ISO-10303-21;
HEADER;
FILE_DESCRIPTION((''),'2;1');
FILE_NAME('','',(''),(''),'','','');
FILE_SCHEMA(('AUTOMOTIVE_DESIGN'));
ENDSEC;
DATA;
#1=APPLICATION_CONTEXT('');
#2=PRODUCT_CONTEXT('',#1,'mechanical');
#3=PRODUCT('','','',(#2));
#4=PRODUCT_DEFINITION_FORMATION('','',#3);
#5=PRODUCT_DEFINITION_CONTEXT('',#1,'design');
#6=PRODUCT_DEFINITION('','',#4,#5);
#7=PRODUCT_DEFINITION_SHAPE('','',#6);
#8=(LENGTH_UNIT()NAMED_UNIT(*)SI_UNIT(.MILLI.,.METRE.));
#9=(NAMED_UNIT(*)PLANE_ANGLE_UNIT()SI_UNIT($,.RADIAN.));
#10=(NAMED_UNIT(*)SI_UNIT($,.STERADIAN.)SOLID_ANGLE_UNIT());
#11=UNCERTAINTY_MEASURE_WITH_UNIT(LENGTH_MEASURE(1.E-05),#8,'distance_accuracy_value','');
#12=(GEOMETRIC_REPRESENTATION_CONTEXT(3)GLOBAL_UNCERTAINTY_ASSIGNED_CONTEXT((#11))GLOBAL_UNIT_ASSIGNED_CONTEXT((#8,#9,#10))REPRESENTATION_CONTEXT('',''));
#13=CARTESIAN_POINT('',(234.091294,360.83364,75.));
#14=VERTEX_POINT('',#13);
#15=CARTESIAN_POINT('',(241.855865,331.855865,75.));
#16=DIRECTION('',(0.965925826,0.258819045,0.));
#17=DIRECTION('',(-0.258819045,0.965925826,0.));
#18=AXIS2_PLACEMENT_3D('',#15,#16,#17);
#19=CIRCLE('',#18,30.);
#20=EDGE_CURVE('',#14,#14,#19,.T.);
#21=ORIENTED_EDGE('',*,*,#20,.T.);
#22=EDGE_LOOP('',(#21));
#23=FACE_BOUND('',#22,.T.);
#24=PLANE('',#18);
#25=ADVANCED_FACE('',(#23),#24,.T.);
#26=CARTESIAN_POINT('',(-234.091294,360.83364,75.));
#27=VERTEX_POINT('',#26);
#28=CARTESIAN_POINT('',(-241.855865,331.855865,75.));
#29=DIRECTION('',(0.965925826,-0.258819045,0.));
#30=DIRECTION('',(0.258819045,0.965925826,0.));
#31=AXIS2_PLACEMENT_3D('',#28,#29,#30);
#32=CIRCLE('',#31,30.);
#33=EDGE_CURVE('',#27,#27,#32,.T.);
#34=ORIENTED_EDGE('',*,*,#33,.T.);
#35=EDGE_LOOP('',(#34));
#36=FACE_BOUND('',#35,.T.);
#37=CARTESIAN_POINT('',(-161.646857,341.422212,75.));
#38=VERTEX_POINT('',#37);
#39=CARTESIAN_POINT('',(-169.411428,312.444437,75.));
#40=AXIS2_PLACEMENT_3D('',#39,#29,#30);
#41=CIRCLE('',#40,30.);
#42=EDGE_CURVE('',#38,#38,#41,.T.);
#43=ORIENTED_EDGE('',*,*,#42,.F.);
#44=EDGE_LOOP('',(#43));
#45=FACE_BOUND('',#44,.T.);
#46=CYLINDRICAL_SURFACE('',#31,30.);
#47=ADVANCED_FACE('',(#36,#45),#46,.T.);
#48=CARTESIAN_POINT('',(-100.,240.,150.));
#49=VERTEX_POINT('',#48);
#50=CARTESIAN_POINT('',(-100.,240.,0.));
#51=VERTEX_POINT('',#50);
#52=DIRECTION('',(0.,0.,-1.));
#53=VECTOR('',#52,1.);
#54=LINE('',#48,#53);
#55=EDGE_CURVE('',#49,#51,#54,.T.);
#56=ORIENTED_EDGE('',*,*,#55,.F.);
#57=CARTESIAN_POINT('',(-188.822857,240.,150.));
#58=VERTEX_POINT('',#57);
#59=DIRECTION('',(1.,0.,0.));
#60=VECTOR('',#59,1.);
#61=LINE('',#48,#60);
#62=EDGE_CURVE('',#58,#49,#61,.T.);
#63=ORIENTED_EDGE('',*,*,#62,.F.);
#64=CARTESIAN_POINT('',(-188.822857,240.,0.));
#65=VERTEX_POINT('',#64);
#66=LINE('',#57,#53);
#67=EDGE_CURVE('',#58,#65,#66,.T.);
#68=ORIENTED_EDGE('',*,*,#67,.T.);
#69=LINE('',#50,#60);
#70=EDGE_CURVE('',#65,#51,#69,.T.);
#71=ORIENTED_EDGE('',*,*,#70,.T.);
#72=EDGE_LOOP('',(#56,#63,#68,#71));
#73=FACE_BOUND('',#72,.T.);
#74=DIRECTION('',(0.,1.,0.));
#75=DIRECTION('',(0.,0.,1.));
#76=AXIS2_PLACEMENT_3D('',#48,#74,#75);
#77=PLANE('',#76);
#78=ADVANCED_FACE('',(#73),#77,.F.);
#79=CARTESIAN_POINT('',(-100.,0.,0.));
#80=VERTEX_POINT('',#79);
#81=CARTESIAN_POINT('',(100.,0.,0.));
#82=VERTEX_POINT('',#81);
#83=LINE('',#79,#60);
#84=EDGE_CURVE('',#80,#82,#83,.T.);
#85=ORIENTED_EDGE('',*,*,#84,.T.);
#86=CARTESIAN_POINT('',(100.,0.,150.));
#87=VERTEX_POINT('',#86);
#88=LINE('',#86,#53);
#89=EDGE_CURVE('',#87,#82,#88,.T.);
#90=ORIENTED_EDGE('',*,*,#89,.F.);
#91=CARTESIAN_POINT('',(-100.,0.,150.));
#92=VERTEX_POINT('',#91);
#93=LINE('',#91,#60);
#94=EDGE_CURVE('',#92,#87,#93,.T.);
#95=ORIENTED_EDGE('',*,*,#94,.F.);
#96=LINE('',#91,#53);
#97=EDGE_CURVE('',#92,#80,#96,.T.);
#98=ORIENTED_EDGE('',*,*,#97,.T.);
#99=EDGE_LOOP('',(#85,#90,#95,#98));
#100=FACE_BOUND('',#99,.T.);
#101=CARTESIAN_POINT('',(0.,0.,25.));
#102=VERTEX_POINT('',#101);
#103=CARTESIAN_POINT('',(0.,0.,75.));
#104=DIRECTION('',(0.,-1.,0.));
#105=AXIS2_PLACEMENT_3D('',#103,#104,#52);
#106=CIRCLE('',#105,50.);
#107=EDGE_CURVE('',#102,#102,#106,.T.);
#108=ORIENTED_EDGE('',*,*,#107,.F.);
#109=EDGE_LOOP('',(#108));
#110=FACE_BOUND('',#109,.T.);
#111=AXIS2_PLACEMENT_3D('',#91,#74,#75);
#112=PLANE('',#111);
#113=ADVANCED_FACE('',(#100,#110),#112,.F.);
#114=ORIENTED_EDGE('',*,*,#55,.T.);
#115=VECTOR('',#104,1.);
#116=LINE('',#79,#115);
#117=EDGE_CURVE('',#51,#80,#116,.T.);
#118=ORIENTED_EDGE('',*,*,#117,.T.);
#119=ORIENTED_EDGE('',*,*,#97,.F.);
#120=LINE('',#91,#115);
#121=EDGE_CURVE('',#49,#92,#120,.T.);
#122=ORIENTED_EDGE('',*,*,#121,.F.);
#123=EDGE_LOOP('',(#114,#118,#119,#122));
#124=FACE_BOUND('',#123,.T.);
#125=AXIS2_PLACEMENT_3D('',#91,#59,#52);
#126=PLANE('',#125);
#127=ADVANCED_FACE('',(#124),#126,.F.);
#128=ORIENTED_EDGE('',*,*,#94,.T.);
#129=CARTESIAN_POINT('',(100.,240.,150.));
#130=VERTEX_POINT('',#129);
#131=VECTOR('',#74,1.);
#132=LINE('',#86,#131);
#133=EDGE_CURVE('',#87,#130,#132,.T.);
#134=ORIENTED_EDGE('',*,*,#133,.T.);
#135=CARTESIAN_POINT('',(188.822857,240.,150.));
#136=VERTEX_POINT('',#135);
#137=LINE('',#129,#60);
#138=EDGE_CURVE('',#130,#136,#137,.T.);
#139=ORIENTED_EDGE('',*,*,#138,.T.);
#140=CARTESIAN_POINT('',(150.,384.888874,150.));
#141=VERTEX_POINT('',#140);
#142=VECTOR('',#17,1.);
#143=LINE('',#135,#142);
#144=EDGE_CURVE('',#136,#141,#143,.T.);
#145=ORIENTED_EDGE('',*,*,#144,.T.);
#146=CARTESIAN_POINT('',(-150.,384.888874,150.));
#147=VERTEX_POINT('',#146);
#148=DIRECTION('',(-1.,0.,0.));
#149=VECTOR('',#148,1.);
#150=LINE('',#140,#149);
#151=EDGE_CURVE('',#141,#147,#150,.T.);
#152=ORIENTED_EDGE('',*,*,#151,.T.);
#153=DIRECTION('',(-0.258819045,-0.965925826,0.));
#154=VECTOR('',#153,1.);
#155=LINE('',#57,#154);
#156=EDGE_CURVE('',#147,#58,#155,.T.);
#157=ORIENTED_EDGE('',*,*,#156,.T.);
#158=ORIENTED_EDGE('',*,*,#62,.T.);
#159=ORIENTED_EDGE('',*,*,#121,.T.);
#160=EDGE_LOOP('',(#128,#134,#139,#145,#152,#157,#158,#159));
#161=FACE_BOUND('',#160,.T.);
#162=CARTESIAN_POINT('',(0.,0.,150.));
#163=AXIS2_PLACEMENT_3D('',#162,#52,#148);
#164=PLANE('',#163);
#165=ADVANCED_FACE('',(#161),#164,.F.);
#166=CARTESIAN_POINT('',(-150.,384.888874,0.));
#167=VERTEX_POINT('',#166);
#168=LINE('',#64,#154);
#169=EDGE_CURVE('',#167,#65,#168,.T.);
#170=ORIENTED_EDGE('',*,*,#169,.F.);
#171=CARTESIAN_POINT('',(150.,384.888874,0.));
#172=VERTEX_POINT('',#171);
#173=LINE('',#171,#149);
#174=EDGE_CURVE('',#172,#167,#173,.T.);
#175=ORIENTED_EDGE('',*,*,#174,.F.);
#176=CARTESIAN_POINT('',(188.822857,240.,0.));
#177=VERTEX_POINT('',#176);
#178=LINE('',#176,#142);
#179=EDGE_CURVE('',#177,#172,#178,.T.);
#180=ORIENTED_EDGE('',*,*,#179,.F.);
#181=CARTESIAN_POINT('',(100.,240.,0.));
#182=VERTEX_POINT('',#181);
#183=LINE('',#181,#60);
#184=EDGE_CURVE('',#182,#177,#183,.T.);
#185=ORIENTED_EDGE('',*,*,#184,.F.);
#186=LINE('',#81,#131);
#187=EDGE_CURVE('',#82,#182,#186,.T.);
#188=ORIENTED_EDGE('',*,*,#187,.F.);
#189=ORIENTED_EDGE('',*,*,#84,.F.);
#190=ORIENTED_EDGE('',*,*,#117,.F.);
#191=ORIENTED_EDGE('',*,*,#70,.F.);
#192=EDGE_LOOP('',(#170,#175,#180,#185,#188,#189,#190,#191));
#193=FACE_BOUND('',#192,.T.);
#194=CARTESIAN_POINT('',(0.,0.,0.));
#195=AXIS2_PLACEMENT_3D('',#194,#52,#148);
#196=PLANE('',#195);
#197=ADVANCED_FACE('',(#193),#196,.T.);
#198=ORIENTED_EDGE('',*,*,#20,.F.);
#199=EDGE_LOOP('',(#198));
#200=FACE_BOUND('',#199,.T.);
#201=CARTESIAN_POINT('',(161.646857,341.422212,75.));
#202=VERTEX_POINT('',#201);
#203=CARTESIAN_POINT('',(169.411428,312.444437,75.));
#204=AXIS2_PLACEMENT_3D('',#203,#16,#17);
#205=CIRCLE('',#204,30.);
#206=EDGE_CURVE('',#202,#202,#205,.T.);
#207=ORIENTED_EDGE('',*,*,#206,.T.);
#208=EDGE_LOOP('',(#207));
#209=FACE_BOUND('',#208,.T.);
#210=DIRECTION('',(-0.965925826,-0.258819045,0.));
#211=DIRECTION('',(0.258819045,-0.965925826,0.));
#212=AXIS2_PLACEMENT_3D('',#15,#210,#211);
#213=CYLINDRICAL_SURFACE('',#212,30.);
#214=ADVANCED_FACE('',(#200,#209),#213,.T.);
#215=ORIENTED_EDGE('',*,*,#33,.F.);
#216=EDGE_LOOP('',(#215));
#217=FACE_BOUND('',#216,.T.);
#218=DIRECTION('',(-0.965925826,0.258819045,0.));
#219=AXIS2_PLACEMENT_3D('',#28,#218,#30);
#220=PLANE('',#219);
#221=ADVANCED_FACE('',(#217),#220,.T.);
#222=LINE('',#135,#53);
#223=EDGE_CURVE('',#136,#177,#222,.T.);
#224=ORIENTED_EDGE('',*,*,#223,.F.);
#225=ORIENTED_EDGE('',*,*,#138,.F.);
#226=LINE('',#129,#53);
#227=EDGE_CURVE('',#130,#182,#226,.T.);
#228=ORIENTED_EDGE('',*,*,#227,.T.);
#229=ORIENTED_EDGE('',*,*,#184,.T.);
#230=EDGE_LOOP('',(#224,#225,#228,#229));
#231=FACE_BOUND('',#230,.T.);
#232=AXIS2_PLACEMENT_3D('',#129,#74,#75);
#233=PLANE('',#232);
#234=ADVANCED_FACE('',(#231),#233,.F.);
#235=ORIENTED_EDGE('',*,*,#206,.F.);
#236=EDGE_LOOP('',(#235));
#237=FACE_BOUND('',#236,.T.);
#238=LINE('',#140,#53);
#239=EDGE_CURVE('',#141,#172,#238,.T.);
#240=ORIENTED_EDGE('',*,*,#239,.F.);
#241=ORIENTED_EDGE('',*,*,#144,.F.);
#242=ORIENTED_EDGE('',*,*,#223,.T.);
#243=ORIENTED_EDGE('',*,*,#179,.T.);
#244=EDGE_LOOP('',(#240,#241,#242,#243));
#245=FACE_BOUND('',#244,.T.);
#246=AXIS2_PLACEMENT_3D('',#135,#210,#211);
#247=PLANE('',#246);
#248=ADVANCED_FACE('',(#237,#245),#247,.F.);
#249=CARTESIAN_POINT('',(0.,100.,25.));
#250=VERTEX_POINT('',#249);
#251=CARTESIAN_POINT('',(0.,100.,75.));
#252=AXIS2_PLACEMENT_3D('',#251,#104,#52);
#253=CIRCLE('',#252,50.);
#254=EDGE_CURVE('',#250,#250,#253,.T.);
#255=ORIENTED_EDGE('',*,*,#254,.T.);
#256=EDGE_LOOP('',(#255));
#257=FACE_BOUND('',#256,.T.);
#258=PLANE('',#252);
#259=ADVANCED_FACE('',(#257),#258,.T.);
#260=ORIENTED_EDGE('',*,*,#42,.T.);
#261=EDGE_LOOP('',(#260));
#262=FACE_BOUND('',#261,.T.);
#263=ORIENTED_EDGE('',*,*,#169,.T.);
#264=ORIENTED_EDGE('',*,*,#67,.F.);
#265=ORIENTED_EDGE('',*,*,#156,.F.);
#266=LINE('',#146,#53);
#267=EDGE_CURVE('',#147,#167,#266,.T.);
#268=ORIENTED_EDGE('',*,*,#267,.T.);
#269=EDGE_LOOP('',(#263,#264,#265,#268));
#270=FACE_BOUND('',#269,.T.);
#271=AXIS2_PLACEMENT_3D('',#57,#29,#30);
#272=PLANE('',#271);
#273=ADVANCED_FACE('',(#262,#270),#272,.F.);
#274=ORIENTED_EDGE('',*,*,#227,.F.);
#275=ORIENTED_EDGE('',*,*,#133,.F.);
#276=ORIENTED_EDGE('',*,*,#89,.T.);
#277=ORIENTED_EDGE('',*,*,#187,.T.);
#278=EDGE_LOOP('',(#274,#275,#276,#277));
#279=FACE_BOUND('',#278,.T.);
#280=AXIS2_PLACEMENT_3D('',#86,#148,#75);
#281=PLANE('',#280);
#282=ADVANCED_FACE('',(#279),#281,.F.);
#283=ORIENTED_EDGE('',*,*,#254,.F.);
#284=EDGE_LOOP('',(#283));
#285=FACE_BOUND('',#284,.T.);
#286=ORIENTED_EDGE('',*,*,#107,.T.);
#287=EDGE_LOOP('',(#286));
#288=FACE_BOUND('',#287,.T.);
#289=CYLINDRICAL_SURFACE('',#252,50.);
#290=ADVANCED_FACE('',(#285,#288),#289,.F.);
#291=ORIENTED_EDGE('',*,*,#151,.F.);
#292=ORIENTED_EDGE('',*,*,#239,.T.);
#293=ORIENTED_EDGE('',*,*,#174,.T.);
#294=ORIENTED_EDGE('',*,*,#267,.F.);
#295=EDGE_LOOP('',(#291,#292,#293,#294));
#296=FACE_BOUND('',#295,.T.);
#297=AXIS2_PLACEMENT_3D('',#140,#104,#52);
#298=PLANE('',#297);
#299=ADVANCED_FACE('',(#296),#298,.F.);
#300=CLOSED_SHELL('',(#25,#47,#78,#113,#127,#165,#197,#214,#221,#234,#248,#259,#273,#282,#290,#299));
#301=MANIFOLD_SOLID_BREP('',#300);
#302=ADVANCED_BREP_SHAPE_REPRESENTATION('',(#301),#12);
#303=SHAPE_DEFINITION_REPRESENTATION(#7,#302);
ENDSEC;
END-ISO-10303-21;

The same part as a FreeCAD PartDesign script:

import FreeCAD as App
import Part
import Sketcher
Q = App.Units.Quantity

doc = App.newDocument("Part")
body = doc.addObject("PartDesign::Body", "Body")

# Sketch on XY plane
sketch1 = body.newObject("Sketcher::SketchObject", "Sketch")
sketch1.AttachmentSupport = (doc.getObject("XY_Plane"), [""])
sketch1.MapMode = "FlatFace"
sketch1.addGeometry(Part.LineSegment(App.Vector(-100, 0, 0), App.Vector(100, 0, 0)), False)
sketch1.addGeometry(Part.LineSegment(App.Vector(100, 0, 0), App.Vector(100, 240, 0)), False)
sketch1.addGeometry(Part.LineSegment(App.Vector(100, 240, 0), App.Vector(188.822857, 240, 0)), False)
sketch1.addGeometry(Part.LineSegment(App.Vector(188.822857, 240, 0), App.Vector(150, 384.888874, 0)), False)
sketch1.addGeometry(Part.LineSegment(App.Vector(150, 384.888874, 0), App.Vector(-150, 384.888874, 0)), False)
sketch1.addGeometry(Part.LineSegment(App.Vector(-150, 384.888874, 0), App.Vector(-188.822857, 240, 0)), False)
sketch1.addGeometry(Part.LineSegment(App.Vector(-188.822857, 240, 0), App.Vector(-100, 240, 0)), False)
sketch1.addGeometry(Part.LineSegment(App.Vector(-100, 240, 0), App.Vector(-100, 0, 0)), False)
sketch1.addConstraint(Sketcher.Constraint("Coincident", 0, 2, 1, 1))
sketch1.addConstraint(Sketcher.Constraint("Coincident", 1, 2, 2, 1))
sketch1.addConstraint(Sketcher.Constraint("Coincident", 2, 2, 3, 1))
sketch1.addConstraint(Sketcher.Constraint("Coincident", 3, 2, 4, 1))
sketch1.addConstraint(Sketcher.Constraint("Coincident", 4, 2, 5, 1))
sketch1.addConstraint(Sketcher.Constraint("Coincident", 5, 2, 6, 1))
sketch1.addConstraint(Sketcher.Constraint("Coincident", 6, 2, 7, 1))
sketch1.addConstraint(Sketcher.Constraint("Coincident", 7, 2, 0, 1))
sketch1.addConstraint(Sketcher.Constraint("Horizontal", 0))
sketch1.addConstraint(Sketcher.Constraint("Vertical", 1))
sketch1.addConstraint(Sketcher.Constraint("Horizontal", 2))
sketch1.addConstraint(Sketcher.Constraint("Horizontal", 4))
sketch1.addConstraint(Sketcher.Constraint("Horizontal", 6))
sketch1.addConstraint(Sketcher.Constraint("Vertical", 7))
sketch1.addConstraint(Sketcher.Constraint("Symmetric", 0, 2, 7, 2, -1, 1))
sketch1.addConstraint(Sketcher.Constraint("Symmetric", 2, 2, 5, 2, -2))
sketch1.addConstraint(Sketcher.Constraint("Equal", 3, 5))
sketch1.addConstraint(Sketcher.Constraint("DistanceX", 0, 1, 0, 2, 200.0))
sketch1.addConstraint(Sketcher.Constraint("DistanceX", 4, 2, 4, 1, 300.0))
sketch1.addConstraint(Sketcher.Constraint("DistanceY", 1, 1, 1, 2, 240.0))
sketch1.addConstraint(Sketcher.Constraint("Angle", 3, Q("105 deg")))
sketch1.addConstraint(Sketcher.Constraint("Distance", 3, 150.0))
pad1 = body.newObject("PartDesign::Pad", "Pad")
pad1.Profile = sketch1
pad1.Length = 150

# Sketch on an angled plane
sketch2 = body.newObject("Sketcher::SketchObject", "Sketch001")
sketch2.Placement = App.Placement(App.Vector(236.174124, 63.282666, 0), App.Rotation(App.Vector(0, 0, -1), App.Vector(-0.258819045, 0.965925826, 0), App.Vector(0.965925826, 0.258819045, 0), "ZXY"))
sketch2.addGeometry(Part.Circle(App.Vector(-75, 257.951247, 0), App.Vector(0, 0, 1), 30), False)
sketch2.addConstraint(Sketcher.Constraint("Diameter", 0, 60.0))
sketch2.addConstraint(Sketcher.Constraint("DistanceX", 0, 3, -1, 1, 75.0))
sketch2.addConstraint(Sketcher.Constraint("DistanceY", -1, 1, 0, 3, 257.951247))
pad2 = body.newObject("PartDesign::Pad", "Pad001")
pad2.Profile = sketch2
pad2.Length = 75
doc.recompute()

mirrored = body.newObject("PartDesign::Mirrored", "Mirrored")
mirrored.Originals = [pad2]
mirrored.MirrorPlane = (doc.getObject("YZ_Plane"), [""])
body.Tip = mirrored

# Sketch on XZ plane
sketch3 = body.newObject("Sketcher::SketchObject", "Sketch002")
sketch3.AttachmentSupport = (doc.getObject("XZ_Plane"), [""])
sketch3.MapMode = "FlatFace"
sketch3.addGeometry(Part.Circle(App.Vector(0, 75, 0), App.Vector(0, 0, 1), 50), False)
sketch3.addConstraint(Sketcher.Constraint("PointOnObject", 0, 3, -2))
sketch3.addConstraint(Sketcher.Constraint("Diameter", 0, 100.0))
sketch3.addConstraint(Sketcher.Constraint("DistanceY", -1, 1, 0, 3, 75.0))
pocket1 = body.newObject("PartDesign::Pocket", "Pocket")
pocket1.Profile = sketch3
pocket1.Length = 100

doc.recompute()
